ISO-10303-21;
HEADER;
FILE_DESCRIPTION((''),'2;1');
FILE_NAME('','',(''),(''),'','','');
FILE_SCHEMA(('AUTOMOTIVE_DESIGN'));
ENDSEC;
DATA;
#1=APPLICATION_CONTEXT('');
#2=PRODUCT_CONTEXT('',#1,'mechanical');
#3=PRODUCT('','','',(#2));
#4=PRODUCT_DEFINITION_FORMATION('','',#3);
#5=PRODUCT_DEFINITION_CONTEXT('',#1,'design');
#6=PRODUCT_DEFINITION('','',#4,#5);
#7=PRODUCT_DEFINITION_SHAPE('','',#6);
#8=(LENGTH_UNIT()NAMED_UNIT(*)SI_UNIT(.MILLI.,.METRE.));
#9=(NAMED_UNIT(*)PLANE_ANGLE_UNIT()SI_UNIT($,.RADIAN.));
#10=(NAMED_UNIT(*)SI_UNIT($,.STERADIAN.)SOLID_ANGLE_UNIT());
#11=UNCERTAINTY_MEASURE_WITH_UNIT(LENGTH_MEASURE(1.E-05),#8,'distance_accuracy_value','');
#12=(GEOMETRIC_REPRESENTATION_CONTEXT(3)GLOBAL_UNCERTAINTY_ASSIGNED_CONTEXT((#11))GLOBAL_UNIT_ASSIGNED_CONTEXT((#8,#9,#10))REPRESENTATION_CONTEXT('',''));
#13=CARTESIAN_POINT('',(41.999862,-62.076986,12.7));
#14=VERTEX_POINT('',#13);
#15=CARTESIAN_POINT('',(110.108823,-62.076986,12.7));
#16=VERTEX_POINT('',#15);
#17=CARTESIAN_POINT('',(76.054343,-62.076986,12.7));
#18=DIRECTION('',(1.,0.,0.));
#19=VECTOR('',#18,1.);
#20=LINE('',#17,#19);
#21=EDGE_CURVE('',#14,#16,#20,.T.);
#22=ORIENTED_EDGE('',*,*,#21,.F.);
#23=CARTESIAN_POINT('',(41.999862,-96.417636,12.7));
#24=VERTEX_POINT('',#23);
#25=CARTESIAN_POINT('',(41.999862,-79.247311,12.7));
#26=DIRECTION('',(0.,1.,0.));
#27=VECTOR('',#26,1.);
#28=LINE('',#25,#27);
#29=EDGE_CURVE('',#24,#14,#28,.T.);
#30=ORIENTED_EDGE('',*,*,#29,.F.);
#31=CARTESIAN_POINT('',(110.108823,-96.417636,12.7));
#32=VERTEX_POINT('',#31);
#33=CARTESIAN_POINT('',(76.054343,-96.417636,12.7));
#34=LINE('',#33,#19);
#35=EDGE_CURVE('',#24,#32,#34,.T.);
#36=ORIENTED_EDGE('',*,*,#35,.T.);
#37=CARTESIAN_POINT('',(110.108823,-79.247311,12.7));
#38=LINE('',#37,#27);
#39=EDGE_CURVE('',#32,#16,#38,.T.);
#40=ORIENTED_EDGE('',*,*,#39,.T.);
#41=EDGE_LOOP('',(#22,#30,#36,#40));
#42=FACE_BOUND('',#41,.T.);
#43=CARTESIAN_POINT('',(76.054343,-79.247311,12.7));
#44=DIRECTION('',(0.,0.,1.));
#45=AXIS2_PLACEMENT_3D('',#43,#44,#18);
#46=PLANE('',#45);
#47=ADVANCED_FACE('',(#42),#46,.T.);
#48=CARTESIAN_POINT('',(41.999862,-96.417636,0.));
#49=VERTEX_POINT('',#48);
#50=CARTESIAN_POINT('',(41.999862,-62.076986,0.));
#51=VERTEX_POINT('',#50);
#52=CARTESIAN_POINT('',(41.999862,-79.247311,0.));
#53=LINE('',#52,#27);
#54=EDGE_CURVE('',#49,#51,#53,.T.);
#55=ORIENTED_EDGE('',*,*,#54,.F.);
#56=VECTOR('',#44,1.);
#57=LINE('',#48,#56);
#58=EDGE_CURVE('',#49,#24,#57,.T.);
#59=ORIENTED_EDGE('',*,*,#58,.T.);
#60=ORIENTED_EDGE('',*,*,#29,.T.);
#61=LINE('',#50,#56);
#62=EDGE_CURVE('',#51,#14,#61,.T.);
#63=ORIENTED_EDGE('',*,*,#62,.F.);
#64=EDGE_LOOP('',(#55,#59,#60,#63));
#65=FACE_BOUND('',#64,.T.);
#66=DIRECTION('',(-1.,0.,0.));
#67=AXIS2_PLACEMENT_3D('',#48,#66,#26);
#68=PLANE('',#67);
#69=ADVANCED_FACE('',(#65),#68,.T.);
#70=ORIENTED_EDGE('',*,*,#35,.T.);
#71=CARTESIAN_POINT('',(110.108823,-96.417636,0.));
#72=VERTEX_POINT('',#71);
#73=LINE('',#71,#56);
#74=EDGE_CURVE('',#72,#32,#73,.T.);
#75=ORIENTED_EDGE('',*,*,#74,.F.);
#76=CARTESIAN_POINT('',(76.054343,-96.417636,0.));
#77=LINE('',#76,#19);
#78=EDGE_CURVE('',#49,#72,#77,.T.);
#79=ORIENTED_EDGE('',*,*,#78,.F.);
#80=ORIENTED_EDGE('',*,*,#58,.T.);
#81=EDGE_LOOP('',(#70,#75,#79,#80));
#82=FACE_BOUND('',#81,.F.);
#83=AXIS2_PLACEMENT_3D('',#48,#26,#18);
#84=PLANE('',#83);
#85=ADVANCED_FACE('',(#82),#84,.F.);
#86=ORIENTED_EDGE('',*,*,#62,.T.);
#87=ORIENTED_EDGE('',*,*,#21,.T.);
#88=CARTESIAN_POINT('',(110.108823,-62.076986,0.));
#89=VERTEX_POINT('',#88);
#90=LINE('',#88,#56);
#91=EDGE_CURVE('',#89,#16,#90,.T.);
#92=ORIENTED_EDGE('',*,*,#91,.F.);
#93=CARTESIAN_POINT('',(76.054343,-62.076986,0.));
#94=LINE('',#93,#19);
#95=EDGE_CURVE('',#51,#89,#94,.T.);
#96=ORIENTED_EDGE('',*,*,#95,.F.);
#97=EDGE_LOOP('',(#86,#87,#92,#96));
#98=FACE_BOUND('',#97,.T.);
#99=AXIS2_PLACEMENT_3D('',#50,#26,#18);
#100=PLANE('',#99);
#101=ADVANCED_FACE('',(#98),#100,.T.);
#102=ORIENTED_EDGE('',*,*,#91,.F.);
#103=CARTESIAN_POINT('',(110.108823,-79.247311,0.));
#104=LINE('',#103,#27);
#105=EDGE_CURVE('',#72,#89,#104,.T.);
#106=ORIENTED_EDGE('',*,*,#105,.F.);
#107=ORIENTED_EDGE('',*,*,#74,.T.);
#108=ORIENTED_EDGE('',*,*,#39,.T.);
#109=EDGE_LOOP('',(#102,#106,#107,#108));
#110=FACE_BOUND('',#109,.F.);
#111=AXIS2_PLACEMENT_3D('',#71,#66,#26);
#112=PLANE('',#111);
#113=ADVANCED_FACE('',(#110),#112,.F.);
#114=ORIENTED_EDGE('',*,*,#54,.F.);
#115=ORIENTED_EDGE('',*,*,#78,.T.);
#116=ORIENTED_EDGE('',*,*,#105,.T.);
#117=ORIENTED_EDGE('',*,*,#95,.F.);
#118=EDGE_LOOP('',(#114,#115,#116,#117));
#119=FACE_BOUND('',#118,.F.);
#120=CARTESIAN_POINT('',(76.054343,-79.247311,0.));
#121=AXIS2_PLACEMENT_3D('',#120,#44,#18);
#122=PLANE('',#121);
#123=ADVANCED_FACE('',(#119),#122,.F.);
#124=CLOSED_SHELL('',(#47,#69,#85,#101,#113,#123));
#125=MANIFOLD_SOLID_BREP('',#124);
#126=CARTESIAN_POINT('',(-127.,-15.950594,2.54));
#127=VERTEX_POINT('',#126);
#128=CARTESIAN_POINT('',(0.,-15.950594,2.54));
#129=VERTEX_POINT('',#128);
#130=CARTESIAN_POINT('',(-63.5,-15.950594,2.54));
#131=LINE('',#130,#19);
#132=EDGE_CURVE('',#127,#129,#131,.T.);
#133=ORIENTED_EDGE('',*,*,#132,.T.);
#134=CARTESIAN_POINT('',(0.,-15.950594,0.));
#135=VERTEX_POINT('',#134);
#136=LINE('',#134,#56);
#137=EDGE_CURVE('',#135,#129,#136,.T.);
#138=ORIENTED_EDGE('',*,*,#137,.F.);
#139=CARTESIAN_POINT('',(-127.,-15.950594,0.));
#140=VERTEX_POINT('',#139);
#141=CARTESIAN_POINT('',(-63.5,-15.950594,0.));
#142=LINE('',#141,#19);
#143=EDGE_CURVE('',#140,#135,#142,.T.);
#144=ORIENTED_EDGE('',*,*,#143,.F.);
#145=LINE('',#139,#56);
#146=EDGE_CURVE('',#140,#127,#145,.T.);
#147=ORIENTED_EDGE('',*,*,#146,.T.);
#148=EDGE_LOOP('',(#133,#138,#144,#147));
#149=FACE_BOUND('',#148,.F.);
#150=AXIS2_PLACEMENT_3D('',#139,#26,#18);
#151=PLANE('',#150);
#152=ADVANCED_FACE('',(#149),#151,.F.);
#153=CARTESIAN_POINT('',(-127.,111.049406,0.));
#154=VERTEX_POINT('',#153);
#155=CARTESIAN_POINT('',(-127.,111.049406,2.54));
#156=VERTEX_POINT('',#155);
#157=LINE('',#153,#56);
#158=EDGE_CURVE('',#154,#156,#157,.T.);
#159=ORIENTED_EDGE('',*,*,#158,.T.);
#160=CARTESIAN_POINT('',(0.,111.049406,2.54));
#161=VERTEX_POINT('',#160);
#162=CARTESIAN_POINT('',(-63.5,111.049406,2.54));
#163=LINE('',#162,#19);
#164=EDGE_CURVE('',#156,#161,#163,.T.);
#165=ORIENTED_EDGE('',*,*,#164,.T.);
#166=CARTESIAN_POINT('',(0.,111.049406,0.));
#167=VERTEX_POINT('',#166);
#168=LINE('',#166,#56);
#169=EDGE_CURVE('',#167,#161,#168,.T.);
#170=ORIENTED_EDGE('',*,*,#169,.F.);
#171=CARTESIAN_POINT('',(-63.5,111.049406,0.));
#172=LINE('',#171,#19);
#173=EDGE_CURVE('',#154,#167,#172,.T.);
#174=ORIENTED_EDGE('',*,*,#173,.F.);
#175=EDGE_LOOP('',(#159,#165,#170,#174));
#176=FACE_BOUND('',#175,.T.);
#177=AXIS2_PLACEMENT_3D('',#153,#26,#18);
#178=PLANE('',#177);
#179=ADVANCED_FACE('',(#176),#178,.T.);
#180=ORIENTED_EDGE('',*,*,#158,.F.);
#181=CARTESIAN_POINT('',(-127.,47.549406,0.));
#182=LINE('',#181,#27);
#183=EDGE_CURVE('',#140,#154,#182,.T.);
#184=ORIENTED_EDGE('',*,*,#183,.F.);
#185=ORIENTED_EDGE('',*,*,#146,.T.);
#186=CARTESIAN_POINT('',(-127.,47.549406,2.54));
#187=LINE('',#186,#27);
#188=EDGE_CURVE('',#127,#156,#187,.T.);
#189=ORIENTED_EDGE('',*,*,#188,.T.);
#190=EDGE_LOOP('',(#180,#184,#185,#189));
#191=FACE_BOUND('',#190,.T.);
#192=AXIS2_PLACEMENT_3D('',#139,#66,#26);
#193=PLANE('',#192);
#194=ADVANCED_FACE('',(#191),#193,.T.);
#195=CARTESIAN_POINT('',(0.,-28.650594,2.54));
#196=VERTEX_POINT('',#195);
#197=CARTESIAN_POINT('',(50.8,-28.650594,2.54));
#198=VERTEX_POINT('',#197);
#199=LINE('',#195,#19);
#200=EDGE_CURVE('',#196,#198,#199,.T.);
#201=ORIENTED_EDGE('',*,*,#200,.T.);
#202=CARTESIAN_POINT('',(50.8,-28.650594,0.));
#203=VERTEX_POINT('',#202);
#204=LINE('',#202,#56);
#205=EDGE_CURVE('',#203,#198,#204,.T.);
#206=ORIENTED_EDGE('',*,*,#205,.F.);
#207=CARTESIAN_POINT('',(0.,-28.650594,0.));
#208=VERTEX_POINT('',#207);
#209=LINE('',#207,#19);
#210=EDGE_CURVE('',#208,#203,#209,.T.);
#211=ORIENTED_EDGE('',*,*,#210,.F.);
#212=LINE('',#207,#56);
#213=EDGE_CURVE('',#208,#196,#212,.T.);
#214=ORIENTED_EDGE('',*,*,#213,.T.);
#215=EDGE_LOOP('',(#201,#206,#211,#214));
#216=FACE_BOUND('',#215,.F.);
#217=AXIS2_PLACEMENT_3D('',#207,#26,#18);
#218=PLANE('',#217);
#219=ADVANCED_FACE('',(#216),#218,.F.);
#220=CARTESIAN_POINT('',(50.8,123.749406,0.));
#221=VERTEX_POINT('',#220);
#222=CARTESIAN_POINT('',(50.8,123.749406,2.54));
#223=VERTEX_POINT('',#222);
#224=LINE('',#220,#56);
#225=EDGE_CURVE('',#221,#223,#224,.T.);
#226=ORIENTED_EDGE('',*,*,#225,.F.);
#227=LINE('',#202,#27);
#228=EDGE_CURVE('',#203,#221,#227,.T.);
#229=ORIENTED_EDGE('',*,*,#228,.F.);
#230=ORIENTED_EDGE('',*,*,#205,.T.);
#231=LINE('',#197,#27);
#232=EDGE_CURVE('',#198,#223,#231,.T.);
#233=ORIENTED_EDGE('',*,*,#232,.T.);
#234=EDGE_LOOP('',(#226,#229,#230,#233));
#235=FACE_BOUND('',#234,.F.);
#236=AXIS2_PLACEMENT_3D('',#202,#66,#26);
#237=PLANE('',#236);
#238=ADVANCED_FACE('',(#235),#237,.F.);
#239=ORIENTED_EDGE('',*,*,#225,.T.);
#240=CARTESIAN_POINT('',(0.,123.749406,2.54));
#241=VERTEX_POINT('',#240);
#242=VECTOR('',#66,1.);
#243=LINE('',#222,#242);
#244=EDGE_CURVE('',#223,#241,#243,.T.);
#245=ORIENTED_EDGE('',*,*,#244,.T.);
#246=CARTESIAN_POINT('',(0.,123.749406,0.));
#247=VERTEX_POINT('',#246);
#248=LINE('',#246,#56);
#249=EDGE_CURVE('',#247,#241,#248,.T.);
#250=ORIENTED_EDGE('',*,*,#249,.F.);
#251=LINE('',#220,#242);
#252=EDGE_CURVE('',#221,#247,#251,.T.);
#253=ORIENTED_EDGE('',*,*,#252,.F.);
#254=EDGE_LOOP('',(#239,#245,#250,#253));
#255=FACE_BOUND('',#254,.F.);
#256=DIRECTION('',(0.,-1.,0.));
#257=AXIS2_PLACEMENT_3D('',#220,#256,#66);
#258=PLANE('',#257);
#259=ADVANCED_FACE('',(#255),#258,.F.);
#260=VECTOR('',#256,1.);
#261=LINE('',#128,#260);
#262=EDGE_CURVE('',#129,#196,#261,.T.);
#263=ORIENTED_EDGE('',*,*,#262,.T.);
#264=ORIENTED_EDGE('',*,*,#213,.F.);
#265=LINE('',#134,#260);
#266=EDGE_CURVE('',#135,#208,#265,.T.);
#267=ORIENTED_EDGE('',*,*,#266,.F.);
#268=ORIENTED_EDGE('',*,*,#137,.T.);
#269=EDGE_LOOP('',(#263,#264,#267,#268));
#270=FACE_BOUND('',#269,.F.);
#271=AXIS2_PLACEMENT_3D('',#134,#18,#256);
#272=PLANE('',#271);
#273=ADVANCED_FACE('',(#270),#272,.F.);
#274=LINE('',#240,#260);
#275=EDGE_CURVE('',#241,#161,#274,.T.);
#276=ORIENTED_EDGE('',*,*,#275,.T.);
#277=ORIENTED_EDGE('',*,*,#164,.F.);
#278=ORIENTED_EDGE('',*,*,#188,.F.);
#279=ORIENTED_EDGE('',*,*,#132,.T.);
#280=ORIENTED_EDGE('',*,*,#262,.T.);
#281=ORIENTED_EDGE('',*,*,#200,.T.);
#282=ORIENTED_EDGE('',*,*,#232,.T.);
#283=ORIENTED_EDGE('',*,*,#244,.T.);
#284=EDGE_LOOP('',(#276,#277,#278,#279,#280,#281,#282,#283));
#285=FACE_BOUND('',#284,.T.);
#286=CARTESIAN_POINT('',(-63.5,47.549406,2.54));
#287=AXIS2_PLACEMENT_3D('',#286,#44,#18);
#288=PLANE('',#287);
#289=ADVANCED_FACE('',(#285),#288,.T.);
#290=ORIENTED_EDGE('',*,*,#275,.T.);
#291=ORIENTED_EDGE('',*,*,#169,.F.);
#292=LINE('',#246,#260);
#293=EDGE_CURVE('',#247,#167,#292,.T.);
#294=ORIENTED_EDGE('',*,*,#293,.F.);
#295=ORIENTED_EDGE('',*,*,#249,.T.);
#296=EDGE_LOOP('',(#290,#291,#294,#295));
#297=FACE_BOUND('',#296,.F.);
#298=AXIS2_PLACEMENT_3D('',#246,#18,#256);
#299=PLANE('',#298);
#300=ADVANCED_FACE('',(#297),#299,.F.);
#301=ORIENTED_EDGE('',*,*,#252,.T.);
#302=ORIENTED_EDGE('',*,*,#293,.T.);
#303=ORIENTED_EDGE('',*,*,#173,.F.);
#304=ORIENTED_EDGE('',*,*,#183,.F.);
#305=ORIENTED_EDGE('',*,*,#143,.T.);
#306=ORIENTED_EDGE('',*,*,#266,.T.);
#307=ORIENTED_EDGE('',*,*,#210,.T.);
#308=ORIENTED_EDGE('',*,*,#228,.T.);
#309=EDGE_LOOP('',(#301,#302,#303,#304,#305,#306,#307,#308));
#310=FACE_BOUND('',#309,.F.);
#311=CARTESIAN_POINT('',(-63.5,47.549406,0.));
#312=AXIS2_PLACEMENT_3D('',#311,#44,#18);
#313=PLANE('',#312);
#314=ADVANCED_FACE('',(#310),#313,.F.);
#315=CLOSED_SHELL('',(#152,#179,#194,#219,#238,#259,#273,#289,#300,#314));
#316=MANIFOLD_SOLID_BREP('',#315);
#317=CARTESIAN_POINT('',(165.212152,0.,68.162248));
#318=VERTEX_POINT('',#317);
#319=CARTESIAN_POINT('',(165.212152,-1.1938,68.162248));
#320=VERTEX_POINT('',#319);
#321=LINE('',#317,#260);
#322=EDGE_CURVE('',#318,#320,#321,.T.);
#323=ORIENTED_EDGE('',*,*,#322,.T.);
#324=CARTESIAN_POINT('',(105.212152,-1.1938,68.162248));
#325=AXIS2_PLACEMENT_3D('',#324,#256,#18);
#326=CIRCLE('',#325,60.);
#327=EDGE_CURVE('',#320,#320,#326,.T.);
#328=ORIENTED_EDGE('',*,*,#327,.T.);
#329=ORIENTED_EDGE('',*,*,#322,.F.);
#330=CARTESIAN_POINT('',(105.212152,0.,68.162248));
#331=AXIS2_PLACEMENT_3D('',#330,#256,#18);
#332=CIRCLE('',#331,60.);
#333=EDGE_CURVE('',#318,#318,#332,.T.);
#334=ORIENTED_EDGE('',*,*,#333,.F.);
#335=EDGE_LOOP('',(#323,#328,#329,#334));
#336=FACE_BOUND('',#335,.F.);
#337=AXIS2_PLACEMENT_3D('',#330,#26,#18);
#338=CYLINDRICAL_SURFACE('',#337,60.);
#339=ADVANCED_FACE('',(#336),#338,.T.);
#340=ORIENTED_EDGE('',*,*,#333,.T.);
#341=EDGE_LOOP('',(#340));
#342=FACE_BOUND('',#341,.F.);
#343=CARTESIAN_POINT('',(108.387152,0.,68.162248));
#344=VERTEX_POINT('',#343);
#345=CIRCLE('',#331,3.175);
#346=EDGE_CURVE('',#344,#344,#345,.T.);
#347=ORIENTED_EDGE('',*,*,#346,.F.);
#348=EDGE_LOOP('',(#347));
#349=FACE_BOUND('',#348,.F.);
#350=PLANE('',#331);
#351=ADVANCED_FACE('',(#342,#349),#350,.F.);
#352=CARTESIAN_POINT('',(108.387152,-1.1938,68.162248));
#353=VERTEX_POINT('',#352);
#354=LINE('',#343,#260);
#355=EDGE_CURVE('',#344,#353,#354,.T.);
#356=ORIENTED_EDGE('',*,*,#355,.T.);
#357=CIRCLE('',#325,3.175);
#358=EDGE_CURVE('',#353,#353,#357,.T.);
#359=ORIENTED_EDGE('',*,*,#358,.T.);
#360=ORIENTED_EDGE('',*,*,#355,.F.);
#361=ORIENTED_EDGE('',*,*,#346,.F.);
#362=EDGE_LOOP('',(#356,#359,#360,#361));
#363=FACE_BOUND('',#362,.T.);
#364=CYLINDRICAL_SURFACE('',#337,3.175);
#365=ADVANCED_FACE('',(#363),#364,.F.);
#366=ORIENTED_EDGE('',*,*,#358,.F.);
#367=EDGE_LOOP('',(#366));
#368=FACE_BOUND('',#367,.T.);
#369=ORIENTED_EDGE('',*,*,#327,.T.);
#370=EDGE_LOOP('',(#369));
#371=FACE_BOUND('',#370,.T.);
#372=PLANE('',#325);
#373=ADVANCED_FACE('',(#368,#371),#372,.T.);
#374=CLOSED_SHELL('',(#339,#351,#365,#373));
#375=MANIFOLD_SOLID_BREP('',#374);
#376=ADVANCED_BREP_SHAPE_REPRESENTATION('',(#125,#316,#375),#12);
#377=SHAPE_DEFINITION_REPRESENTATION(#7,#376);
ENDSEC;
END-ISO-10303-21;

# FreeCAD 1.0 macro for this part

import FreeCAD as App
import Part
import Sketcher
from FreeCAD import Vector
Q = App.Units.Quantity

doc = App.newDocument("Part")
params = doc.addObject("Spreadsheet::Sheet", "Params")
for row, (alias, value) in enumerate([
    ("sketch1_width", "5 in"),
    ("sketch1_width2", "2 in"),
    ("sketch1_height", "6 in"),
    ("pad1_length", "0.1 in"),
    ("sketch2_diameter", "0.25 in"),
    ("pad2_length", "0.047 in"),
    ("pad3_length", "0.5 in"),
], start=1):
    params.set(f"A{row}", alias)
    params.set(f"B{row}", "=" + value)
    params.setAlias(f"B{row}", alias)

body = doc.addObject("PartDesign::Body", "Body")

# Sketch on XY plane
sketch1 = doc.addObject("Sketcher::SketchObject", "Sketch")
body.addObject(sketch1)
sketch1.AttachmentSupport = (doc.XY_Plane, [""])
sketch1.MapMode = "FlatFace"
sketch1.addGeometry(Part.LineSegment(Vector(-127, 111.049406, 0), Vector(-127, -15.950594, 0)), False)
sketch1.addGeometry(Part.LineSegment(Vector(-127, -15.950594, 0), Vector(0, -15.950594, 0)), False)
sketch1.addGeometry(Part.LineSegment(Vector(0, -15.950594, 0), Vector(0, -28.650594, 0)), False)
sketch1.addGeometry(Part.LineSegment(Vector(0, -28.650594, 0), Vector(50.8, -28.650594, 0)), False)
sketch1.addGeometry(Part.LineSegment(Vector(50.8, -28.650594, 0), Vector(50.8, 123.749406, 0)), False)
sketch1.addGeometry(Part.LineSegment(Vector(50.8, 123.749406, 0), Vector(0, 123.749406, 0)), False)
sketch1.addGeometry(Part.LineSegment(Vector(0, 123.749406, 0), Vector(0, 111.049406, 0)), False)
sketch1.addGeometry(Part.LineSegment(Vector(0, 111.049406, 0), Vector(-127, 111.049406, 0)), False)
sketch1.addConstraint(Sketcher.Constraint("Coincident", 0, 2, 1, 1))
sketch1.addConstraint(Sketcher.Constraint("Coincident", 1, 2, 2, 1))
sketch1.addConstraint(Sketcher.Constraint("Coincident", 2, 2, 3, 1))
sketch1.addConstraint(Sketcher.Constraint("Coincident", 3, 2, 4, 1))
sketch1.addConstraint(Sketcher.Constraint("Coincident", 4, 2, 5, 1))
sketch1.addConstraint(Sketcher.Constraint("Coincident", 5, 2, 6, 1))
sketch1.addConstraint(Sketcher.Constraint("Coincident", 6, 2, 7, 1))
sketch1.addConstraint(Sketcher.Constraint("Coincident", 7, 2, 0, 1))
sketch1.addConstraint(Sketcher.Constraint("Vertical", 0))
sketch1.addConstraint(Sketcher.Constraint("Horizontal", 1))
sketch1.addConstraint(Sketcher.Constraint("Vertical", 2))
sketch1.addConstraint(Sketcher.Constraint("Horizontal", 3))
sketch1.addConstraint(Sketcher.Constraint("Vertical", 4))
sketch1.addConstraint(Sketcher.Constraint("Horizontal", 5))
sketch1.addConstraint(Sketcher.Constraint("Vertical", 6))
sketch1.addConstraint(Sketcher.Constraint("Horizontal", 7))
sketch1.addConstraint(Sketcher.Constraint("PointOnObject", 1, 2, -2))
sketch1.addConstraint(Sketcher.Constraint("PointOnObject", 5, 2, -2))
sketch1.addConstraint(Sketcher.Constraint("Equal", 7, 0))
sketch1.addConstraint(Sketcher.Constraint("Equal", 2, 6))
sketch1.addConstraint(Sketcher.Constraint("DistanceX", 1, 1, 1, 2, Q("5 in")))
sketch1.addConstraint(Sketcher.Constraint("DistanceX", 3, 1, 3, 2, Q("2 in")))
sketch1.addConstraint(Sketcher.Constraint("DistanceY", 4, 1, 4, 2, Q("6 in")))
sketch1.addConstraint(Sketcher.Constraint("DistanceY", 0, 2, -1, 1, 15.950594))
sketch1.setExpression("Constraints[20]", "Params.sketch1_width")
sketch1.setExpression("Constraints[21]", "Params.sketch1_width2")
sketch1.setExpression("Constraints[22]", "Params.sketch1_height")
pad1 = doc.addObject("PartDesign::Pad", "Pad")
body.addObject(pad1)
pad1.Profile = sketch1
pad1.setExpression("Length", "Params.pad1_length")
body2 = doc.addObject("PartDesign::Body", "Body001")

# Sketch on XZ plane
sketch2 = doc.addObject("Sketcher::SketchObject", "Sketch001")
body2.addObject(sketch2)
sketch2.AttachmentSupport = (doc.getObject("XZ_Plane001"), [""])
sketch2.MapMode = "FlatFace"
sketch2.addGeometry(Part.Circle(Vector(105.212152, 68.162248, 0), Vector(0, 0, 1), 60), False)
sketch2.addGeometry(Part.Circle(Vector(105.212152, 68.162248, 0), Vector(0, 0, 1), 3.175), False)
sketch2.addConstraint(Sketcher.Constraint("Coincident", 1, 3, 0, 3))
sketch2.addConstraint(Sketcher.Constraint("Diameter", 1, Q("0.25 in")))
sketch2.addConstraint(Sketcher.Constraint("Diameter", 0, 120.0))
sketch2.addConstraint(Sketcher.Constraint("DistanceY", -1, 1, 0, 3, 68.162248))
sketch2.addConstraint(Sketcher.Constraint("DistanceX", -1, 1, 0, 3, 105.212152))
sketch2.setExpression("Constraints[1]", "Params.sketch2_diameter")
pad2 = doc.addObject("PartDesign::Pad", "Pad001")
body2.addObject(pad2)
pad2.Profile = sketch2
pad2.setExpression("Length", "Params.pad2_length")
body3 = doc.addObject("PartDesign::Body", "Body002")

# Sketch on XY plane
sketch3 = doc.addObject("Sketcher::SketchObject", "Sketch002")
body3.addObject(sketch3)
sketch3.AttachmentSupport = (doc.getObject("XY_Plane002"), [""])
sketch3.MapMode = "FlatFace"
sketch3.addGeometry(Part.LineSegment(Vector(41.999862, -62.076986, 0), Vector(41.999862, -96.417636, 0)), False)
sketch3.addGeometry(Part.LineSegment(Vector(41.999862, -96.417636, 0), Vector(110.108823, -96.417636, 0)), False)
sketch3.addGeometry(Part.LineSegment(Vector(110.108823, -96.417636, 0), Vector(110.108823, -62.076986, 0)), False)
sketch3.addGeometry(Part.LineSegment(Vector(110.108823, -62.076986, 0), Vector(41.999862, -62.076986, 0)), False)
sketch3.addConstraint(Sketcher.Constraint("Coincident", 0, 2, 1, 1))
sketch3.addConstraint(Sketcher.Constraint("Coincident", 1, 2, 2, 1))
sketch3.addConstraint(Sketcher.Constraint("Coincident", 2, 2, 3, 1))
sketch3.addConstraint(Sketcher.Constraint("Coincident", 3, 2, 0, 1))
sketch3.addConstraint(Sketcher.Constraint("Vertical", 0))
sketch3.addConstraint(Sketcher.Constraint("Horizontal", 1))
sketch3.addConstraint(Sketcher.Constraint("Vertical", 2))
sketch3.addConstraint(Sketcher.Constraint("Horizontal", 3))
sketch3.addConstraint(Sketcher.Constraint("DistanceX", 1, 1, 1, 2, 68.108961))
sketch3.addConstraint(Sketcher.Constraint("DistanceY", 0, 2, 0, 1, 34.34065))
sketch3.addConstraint(Sketcher.Constraint("DistanceX", -1, 1, 0, 2, 41.999862))
sketch3.addConstraint(Sketcher.Constraint("DistanceY", 0, 2, -1, 1, 96.417636))
pad3 = doc.addObject("PartDesign::Pad", "Pad002")
body3.addObject(pad3)
pad3.Profile = sketch3
pad3.setExpression("Length", "Params.pad3_length")

doc.recompute()
